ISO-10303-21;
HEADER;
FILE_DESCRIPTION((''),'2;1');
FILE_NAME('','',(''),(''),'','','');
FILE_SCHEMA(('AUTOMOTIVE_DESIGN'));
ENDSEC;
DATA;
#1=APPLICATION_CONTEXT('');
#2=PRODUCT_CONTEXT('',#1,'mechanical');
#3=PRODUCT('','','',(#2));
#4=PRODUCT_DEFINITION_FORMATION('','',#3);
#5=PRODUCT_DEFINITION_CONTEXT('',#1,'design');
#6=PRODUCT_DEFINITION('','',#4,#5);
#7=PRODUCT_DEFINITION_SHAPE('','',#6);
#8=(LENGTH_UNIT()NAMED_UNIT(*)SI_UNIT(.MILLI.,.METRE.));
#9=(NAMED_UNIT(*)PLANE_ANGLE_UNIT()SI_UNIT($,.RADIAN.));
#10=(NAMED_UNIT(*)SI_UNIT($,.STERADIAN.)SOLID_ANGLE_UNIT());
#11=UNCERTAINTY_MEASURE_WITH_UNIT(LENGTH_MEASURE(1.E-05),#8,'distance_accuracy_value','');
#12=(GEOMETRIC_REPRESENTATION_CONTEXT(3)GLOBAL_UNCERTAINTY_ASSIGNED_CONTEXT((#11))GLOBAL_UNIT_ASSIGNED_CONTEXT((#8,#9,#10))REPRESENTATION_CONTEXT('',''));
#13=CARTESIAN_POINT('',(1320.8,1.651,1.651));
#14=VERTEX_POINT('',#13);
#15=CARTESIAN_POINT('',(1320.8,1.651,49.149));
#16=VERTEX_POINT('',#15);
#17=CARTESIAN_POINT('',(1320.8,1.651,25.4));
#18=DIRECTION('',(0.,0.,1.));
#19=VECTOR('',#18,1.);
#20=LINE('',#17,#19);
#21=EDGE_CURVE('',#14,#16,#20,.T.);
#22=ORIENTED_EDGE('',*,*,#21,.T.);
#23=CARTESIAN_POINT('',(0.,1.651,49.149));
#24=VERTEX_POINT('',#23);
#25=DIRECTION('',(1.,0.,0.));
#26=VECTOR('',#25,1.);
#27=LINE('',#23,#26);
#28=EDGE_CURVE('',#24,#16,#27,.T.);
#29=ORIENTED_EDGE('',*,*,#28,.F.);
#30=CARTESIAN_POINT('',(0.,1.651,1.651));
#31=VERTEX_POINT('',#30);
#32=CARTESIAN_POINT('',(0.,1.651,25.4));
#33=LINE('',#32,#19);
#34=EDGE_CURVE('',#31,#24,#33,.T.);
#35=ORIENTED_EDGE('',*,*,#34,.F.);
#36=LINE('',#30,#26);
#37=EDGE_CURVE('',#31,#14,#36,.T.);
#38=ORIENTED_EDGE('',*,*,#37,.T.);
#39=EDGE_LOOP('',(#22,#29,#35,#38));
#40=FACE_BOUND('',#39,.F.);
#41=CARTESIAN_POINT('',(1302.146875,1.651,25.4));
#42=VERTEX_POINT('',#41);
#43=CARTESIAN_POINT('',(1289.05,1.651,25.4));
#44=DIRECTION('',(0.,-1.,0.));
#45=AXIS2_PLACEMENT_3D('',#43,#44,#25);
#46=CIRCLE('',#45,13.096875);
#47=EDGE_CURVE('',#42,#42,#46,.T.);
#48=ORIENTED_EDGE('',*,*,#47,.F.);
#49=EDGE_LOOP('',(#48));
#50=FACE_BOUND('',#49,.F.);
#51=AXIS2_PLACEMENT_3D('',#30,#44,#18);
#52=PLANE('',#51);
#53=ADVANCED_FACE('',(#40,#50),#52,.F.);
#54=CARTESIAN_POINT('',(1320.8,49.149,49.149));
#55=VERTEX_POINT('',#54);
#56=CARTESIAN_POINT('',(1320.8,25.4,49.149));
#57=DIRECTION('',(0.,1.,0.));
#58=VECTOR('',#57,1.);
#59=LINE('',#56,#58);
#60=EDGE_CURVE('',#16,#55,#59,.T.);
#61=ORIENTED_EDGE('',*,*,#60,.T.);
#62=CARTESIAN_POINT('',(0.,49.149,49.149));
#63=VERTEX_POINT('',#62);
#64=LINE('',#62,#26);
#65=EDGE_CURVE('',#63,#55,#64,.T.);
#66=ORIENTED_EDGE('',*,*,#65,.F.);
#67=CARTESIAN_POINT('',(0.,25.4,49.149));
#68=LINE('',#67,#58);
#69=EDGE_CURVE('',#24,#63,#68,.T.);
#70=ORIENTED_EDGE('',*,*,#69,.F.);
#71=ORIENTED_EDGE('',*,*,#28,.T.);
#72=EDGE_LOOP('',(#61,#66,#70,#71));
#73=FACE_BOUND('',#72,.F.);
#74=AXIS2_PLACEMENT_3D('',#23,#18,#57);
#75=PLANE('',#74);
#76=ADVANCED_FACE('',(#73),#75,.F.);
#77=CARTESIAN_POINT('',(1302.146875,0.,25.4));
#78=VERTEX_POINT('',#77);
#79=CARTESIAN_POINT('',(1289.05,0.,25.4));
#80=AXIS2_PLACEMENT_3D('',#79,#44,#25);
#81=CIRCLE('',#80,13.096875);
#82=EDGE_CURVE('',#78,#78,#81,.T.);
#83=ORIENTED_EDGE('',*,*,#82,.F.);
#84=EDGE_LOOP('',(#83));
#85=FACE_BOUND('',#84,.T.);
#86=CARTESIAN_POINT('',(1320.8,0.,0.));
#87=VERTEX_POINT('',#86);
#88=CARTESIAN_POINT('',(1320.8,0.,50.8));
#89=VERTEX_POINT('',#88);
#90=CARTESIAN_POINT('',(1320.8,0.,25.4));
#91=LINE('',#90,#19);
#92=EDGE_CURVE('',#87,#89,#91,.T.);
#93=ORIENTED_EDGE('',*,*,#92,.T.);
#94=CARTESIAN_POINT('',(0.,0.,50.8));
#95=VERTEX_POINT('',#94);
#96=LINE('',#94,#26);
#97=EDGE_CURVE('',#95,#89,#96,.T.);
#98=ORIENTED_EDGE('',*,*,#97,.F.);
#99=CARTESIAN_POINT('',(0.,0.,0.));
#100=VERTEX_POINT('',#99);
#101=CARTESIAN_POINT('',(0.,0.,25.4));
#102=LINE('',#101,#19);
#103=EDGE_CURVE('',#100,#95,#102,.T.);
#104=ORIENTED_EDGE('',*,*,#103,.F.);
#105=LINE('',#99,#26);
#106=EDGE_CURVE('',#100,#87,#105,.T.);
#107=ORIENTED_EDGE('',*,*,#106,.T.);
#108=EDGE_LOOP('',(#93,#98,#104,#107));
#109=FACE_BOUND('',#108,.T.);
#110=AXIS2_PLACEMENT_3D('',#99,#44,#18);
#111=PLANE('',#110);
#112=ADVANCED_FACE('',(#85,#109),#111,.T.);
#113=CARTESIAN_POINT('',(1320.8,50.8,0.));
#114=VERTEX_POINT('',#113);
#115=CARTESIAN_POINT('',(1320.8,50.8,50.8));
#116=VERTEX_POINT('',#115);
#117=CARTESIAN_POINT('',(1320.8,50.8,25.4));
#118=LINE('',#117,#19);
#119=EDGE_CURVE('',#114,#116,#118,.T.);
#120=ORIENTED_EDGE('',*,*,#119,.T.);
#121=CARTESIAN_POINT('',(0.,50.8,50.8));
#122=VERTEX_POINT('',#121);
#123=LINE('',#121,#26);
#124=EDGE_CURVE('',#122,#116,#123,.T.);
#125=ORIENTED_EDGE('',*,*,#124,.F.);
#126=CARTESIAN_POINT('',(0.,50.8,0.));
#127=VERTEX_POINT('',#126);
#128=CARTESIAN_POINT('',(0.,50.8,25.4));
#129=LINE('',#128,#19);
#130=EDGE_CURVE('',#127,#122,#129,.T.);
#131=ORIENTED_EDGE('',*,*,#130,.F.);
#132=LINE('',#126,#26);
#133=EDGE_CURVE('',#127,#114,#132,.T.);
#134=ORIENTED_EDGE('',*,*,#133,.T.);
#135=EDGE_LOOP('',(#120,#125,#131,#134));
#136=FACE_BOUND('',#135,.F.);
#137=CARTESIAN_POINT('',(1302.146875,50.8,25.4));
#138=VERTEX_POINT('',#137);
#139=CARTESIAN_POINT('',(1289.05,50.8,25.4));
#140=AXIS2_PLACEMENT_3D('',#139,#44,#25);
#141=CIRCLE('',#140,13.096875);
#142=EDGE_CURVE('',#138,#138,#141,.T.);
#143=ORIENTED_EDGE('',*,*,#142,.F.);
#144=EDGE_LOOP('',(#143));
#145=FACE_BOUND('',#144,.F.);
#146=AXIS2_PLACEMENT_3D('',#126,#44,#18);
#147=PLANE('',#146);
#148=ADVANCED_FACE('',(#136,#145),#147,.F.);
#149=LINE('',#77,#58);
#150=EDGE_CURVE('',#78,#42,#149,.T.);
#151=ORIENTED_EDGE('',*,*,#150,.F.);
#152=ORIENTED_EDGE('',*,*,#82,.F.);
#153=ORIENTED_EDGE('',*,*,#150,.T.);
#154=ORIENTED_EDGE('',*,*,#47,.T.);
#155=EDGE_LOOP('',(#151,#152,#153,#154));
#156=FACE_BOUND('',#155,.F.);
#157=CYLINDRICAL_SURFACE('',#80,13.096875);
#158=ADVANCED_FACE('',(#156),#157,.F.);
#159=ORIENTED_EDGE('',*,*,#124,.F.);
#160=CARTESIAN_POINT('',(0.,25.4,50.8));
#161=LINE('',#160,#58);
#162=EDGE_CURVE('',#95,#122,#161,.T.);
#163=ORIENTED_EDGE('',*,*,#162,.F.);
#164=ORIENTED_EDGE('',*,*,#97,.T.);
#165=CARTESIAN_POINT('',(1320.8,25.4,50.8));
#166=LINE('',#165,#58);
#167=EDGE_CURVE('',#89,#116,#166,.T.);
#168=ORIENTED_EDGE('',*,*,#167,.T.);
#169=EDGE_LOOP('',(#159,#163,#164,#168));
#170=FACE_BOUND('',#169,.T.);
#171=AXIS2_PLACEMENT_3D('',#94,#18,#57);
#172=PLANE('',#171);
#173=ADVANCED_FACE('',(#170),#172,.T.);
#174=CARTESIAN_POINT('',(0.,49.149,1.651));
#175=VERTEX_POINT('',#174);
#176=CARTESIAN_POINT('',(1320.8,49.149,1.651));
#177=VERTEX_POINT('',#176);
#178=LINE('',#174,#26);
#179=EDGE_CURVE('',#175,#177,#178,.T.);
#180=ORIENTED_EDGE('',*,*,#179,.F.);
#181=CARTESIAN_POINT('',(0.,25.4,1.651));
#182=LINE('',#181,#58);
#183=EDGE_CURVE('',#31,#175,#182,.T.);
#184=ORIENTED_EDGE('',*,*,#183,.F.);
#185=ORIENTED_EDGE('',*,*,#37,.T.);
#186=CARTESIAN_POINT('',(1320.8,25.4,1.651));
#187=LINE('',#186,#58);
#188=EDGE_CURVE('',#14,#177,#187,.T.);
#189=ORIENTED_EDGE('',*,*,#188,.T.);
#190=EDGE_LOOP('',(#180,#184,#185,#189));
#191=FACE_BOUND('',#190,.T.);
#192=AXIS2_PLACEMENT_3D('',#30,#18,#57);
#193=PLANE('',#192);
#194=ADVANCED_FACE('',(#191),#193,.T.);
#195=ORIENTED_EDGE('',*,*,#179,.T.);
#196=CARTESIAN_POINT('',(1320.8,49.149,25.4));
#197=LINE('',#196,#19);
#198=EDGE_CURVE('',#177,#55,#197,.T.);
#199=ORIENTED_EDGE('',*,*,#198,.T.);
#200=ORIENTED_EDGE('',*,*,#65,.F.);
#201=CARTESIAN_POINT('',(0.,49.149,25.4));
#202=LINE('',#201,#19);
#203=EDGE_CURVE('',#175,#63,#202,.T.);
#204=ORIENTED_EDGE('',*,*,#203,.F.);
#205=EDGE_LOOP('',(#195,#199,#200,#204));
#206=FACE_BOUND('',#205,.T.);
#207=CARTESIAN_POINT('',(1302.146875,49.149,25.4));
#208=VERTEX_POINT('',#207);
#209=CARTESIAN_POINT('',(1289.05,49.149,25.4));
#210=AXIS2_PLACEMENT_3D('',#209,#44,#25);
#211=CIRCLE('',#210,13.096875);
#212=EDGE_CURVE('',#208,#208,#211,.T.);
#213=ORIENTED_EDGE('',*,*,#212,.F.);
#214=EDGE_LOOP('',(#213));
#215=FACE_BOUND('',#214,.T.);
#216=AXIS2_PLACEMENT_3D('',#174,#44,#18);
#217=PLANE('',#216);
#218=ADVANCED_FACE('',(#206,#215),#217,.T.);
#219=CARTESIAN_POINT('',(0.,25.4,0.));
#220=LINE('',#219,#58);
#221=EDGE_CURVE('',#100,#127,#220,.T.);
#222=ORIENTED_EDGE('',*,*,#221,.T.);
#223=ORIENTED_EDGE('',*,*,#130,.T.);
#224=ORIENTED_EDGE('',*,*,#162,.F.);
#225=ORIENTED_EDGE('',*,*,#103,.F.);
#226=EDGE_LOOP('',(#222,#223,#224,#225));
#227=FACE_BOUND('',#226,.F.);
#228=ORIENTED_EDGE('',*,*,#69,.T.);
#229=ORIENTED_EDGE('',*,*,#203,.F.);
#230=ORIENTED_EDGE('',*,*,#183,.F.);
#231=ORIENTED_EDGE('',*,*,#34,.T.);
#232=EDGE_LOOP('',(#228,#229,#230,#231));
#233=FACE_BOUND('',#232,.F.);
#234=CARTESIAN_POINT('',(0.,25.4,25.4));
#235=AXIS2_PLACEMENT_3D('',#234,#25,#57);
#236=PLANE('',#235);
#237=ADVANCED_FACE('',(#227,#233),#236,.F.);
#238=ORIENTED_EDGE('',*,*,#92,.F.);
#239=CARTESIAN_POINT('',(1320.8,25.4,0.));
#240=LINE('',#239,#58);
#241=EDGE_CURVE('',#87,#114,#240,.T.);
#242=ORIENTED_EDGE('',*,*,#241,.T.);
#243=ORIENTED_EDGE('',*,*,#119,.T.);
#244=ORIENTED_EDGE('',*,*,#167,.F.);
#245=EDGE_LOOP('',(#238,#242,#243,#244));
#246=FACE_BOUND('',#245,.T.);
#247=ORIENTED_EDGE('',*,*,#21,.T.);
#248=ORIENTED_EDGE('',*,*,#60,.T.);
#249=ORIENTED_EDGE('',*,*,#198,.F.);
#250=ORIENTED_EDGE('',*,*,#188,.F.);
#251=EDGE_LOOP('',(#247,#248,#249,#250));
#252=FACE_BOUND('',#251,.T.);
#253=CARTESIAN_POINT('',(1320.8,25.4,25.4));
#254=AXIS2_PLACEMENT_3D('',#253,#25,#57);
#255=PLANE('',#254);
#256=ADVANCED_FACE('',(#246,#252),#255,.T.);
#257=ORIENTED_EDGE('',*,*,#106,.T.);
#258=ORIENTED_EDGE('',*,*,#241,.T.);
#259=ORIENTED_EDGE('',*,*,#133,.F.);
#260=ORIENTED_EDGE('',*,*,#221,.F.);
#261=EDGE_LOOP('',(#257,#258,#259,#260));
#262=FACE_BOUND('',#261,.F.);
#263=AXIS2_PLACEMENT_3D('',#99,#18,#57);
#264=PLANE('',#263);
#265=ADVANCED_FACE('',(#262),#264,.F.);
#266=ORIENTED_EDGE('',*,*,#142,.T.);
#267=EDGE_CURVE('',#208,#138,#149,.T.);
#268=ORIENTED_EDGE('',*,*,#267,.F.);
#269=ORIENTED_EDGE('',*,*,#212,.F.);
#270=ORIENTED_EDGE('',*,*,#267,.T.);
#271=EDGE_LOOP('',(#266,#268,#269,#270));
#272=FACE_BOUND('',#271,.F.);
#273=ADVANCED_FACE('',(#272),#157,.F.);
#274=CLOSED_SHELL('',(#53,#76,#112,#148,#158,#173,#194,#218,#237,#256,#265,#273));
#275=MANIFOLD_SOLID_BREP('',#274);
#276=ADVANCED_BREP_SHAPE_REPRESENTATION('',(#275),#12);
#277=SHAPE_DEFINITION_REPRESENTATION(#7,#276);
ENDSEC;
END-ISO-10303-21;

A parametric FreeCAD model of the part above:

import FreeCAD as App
import Part
import Sketcher
from FreeCAD import Vector
Q = App.Units.Quantity

doc = App.newDocument("Part")
params = doc.addObject("Spreadsheet::Sheet", "Params")
for row, (alias, value) in enumerate([
    ("sketch1_width", "2 in"),
    ("sketch1_width2", "1.87 in"),
    ("pad1_length", "52 in"),
    ("sketch2_diameter", "1.03125 in"),
], start=1):
    params.set(f"A{row}", alias)
    params.set(f"B{row}", "=" + value)
    params.setAlias(f"B{row}", alias)

body = doc.addObject("PartDesign::Body", "Body")

# Sketch on YZ plane
sketch1 = body.newObject("Sketcher::SketchObject", "Sketch")
sketch1.AttachmentSupport = (doc.getObject("YZ_Plane"), [""])
sketch1.MapMode = "FlatFace"
sketch1.addGeometry([
    Part.LineSegment(Vector(0, 50.8, 0), Vector(0, 0, 0)),  # 0
    Part.LineSegment(Vector(0, 0, 0), Vector(50.8, 0, 0)),  # 1
    Part.LineSegment(Vector(50.8, 0, 0), Vector(50.8, 50.8, 0)),  # 2
    Part.LineSegment(Vector(50.8, 50.8, 0), Vector(0, 50.8, 0)),  # 3
    Part.LineSegment(Vector(49.149, 1.651, 0), Vector(1.651, 1.651, 0)),  # 4
    Part.LineSegment(Vector(1.651, 1.651, 0), Vector(1.651, 49.149, 0)),  # 5
    Part.LineSegment(Vector(1.651, 49.149, 0), Vector(49.149, 49.149, 0)),  # 6
    Part.LineSegment(Vector(49.149, 49.149, 0), Vector(49.149, 1.651, 0)),  # 7
], False)
sketch1.addConstraint([
    Sketcher.Constraint("Coincident", 0, 2, 1, 1),
    Sketcher.Constraint("Coincident", 1, 2, 2, 1),
    Sketcher.Constraint("Coincident", 2, 2, 3, 1),
    Sketcher.Constraint("Coincident", 3, 2, 0, 1),
    Sketcher.Constraint("Coincident", 4, 2, 5, 1),
    Sketcher.Constraint("Coincident", 5, 2, 6, 1),
    Sketcher.Constraint("Coincident", 6, 2, 7, 1),
    Sketcher.Constraint("Coincident", 7, 2, 4, 1),
    Sketcher.Constraint("Vertical", 0),
    Sketcher.Constraint("Horizontal", 1),
    Sketcher.Constraint("Vertical", 2),
    Sketcher.Constraint("Horizontal", 3),
    Sketcher.Constraint("Horizontal", 4),
    Sketcher.Constraint("Vertical", 5),
    Sketcher.Constraint("Horizontal", 6),
    Sketcher.Constraint("Vertical", 7),
    Sketcher.Constraint("Coincident", 0, 2, -1, 1),
    Sketcher.Constraint("Equal", 3, 0),
    Sketcher.Constraint("Equal", 6, 5),
    Sketcher.Constraint("DistanceX", 1, 1, 1, 2, Q("2 in")),
    Sketcher.Constraint("DistanceX", 4, 2, 4, 1, Q("1.87 in")),
    Sketcher.Constraint("DistanceX", -1, 1, 4, 2, Q("0.065 in")),
    Sketcher.Constraint("DistanceY", -1, 1, 4, 2, Q("0.065 in")),
])
sketch1.setExpression("Constraints[19]", "Params.sketch1_width")
sketch1.setExpression("Constraints[20]", "Params.sketch1_width2")
pad1 = body.newObject("PartDesign::Pad", "Pad")
pad1.Profile = sketch1
pad1.setExpression("Length", "Params.pad1_length")

# Sketch on XZ plane
sketch2 = body.newObject("Sketcher::SketchObject", "Sketch001")
sketch2.AttachmentSupport = (doc.getObject("XZ_Plane"), [""])
sketch2.MapMode = "FlatFace"
sketch2.addGeometry(Part.Circle(Vector(1289.05, 25.4, 0), Vector(0, 0, 1), 13.096875), False)
sketch2.addConstraint([
    Sketcher.Constraint("Diameter", 0, Q("1.03125 in")),
    Sketcher.Constraint("DistanceY", -1, 1, 0, 3, Q("1 in")),
    Sketcher.Constraint("DistanceX", -1, 1, 0, 3, Q("50.75 in")),
])
sketch2.setExpression("Constraints[0]", "Params.sketch2_diameter")
pocket1 = body.newObject("PartDesign::Pocket", "Pocket")
pocket1.Profile = sketch2
pocket1.Type = "ThroughAll"

doc.recompute()
